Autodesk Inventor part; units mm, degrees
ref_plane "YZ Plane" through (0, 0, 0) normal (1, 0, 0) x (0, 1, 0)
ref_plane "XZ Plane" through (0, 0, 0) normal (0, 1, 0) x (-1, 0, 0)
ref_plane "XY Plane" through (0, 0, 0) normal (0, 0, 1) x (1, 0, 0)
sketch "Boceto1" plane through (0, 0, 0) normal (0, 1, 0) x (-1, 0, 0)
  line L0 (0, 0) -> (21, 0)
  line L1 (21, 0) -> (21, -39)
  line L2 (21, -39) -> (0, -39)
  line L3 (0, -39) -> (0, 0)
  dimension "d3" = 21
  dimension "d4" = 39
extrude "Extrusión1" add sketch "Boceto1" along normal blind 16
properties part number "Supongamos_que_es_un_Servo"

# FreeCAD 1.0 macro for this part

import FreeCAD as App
import Part
import Sketcher
Q = App.Units.Quantity

doc = App.newDocument("Part")
body = doc.addObject("PartDesign::Body", "Body")

# Sketch on XZ plane
sketch1 = body.newObject("Sketcher::SketchObject", "Sketch")
sketch1.AttachmentSupport = (doc.getObject("XZ_Plane"), [""])
sketch1.MapMode = "FlatFace"
sketch1.addGeometry([
    Part.LineSegment(App.Vector(-21, 0, 0), App.Vector(0, 0, 0)),
    Part.LineSegment(App.Vector(0, 0, 0), App.Vector(0, -39, 0)),
    Part.LineSegment(App.Vector(0, -39, 0), App.Vector(-21, -39, 0)),
    Part.LineSegment(App.Vector(-21, -39, 0), App.Vector(-21, 0, 0)),
], False)
sketch1.addConstraint([
    Sketcher.Constraint("Coincident", 0, 2, 1, 1),
    Sketcher.Constraint("Coincident", 1, 2, 2, 1),
    Sketcher.Constraint("Coincident", 2, 2, 3, 1),
    Sketcher.Constraint("Coincident", 3, 2, 0, 1),
    Sketcher.Constraint("Horizontal", 0),
    Sketcher.Constraint("Vertical", 1),
    Sketcher.Constraint("Horizontal", 2),
    Sketcher.Constraint("Vertical", 3),
    Sketcher.Constraint("Coincident", 0, 2, -1, 1),
    Sketcher.Constraint("DistanceX", 0, 1, 0, 2, Q("21 mm")),
    Sketcher.Constraint("DistanceY", 1, 2, 1, 1, Q("39 mm")),
])
pad1 = body.newObject("PartDesign::Pad", "Pad")
pad1.Profile = sketch1
pad1.Length = 16
pad1.Reversed = True

doc.recompute()
